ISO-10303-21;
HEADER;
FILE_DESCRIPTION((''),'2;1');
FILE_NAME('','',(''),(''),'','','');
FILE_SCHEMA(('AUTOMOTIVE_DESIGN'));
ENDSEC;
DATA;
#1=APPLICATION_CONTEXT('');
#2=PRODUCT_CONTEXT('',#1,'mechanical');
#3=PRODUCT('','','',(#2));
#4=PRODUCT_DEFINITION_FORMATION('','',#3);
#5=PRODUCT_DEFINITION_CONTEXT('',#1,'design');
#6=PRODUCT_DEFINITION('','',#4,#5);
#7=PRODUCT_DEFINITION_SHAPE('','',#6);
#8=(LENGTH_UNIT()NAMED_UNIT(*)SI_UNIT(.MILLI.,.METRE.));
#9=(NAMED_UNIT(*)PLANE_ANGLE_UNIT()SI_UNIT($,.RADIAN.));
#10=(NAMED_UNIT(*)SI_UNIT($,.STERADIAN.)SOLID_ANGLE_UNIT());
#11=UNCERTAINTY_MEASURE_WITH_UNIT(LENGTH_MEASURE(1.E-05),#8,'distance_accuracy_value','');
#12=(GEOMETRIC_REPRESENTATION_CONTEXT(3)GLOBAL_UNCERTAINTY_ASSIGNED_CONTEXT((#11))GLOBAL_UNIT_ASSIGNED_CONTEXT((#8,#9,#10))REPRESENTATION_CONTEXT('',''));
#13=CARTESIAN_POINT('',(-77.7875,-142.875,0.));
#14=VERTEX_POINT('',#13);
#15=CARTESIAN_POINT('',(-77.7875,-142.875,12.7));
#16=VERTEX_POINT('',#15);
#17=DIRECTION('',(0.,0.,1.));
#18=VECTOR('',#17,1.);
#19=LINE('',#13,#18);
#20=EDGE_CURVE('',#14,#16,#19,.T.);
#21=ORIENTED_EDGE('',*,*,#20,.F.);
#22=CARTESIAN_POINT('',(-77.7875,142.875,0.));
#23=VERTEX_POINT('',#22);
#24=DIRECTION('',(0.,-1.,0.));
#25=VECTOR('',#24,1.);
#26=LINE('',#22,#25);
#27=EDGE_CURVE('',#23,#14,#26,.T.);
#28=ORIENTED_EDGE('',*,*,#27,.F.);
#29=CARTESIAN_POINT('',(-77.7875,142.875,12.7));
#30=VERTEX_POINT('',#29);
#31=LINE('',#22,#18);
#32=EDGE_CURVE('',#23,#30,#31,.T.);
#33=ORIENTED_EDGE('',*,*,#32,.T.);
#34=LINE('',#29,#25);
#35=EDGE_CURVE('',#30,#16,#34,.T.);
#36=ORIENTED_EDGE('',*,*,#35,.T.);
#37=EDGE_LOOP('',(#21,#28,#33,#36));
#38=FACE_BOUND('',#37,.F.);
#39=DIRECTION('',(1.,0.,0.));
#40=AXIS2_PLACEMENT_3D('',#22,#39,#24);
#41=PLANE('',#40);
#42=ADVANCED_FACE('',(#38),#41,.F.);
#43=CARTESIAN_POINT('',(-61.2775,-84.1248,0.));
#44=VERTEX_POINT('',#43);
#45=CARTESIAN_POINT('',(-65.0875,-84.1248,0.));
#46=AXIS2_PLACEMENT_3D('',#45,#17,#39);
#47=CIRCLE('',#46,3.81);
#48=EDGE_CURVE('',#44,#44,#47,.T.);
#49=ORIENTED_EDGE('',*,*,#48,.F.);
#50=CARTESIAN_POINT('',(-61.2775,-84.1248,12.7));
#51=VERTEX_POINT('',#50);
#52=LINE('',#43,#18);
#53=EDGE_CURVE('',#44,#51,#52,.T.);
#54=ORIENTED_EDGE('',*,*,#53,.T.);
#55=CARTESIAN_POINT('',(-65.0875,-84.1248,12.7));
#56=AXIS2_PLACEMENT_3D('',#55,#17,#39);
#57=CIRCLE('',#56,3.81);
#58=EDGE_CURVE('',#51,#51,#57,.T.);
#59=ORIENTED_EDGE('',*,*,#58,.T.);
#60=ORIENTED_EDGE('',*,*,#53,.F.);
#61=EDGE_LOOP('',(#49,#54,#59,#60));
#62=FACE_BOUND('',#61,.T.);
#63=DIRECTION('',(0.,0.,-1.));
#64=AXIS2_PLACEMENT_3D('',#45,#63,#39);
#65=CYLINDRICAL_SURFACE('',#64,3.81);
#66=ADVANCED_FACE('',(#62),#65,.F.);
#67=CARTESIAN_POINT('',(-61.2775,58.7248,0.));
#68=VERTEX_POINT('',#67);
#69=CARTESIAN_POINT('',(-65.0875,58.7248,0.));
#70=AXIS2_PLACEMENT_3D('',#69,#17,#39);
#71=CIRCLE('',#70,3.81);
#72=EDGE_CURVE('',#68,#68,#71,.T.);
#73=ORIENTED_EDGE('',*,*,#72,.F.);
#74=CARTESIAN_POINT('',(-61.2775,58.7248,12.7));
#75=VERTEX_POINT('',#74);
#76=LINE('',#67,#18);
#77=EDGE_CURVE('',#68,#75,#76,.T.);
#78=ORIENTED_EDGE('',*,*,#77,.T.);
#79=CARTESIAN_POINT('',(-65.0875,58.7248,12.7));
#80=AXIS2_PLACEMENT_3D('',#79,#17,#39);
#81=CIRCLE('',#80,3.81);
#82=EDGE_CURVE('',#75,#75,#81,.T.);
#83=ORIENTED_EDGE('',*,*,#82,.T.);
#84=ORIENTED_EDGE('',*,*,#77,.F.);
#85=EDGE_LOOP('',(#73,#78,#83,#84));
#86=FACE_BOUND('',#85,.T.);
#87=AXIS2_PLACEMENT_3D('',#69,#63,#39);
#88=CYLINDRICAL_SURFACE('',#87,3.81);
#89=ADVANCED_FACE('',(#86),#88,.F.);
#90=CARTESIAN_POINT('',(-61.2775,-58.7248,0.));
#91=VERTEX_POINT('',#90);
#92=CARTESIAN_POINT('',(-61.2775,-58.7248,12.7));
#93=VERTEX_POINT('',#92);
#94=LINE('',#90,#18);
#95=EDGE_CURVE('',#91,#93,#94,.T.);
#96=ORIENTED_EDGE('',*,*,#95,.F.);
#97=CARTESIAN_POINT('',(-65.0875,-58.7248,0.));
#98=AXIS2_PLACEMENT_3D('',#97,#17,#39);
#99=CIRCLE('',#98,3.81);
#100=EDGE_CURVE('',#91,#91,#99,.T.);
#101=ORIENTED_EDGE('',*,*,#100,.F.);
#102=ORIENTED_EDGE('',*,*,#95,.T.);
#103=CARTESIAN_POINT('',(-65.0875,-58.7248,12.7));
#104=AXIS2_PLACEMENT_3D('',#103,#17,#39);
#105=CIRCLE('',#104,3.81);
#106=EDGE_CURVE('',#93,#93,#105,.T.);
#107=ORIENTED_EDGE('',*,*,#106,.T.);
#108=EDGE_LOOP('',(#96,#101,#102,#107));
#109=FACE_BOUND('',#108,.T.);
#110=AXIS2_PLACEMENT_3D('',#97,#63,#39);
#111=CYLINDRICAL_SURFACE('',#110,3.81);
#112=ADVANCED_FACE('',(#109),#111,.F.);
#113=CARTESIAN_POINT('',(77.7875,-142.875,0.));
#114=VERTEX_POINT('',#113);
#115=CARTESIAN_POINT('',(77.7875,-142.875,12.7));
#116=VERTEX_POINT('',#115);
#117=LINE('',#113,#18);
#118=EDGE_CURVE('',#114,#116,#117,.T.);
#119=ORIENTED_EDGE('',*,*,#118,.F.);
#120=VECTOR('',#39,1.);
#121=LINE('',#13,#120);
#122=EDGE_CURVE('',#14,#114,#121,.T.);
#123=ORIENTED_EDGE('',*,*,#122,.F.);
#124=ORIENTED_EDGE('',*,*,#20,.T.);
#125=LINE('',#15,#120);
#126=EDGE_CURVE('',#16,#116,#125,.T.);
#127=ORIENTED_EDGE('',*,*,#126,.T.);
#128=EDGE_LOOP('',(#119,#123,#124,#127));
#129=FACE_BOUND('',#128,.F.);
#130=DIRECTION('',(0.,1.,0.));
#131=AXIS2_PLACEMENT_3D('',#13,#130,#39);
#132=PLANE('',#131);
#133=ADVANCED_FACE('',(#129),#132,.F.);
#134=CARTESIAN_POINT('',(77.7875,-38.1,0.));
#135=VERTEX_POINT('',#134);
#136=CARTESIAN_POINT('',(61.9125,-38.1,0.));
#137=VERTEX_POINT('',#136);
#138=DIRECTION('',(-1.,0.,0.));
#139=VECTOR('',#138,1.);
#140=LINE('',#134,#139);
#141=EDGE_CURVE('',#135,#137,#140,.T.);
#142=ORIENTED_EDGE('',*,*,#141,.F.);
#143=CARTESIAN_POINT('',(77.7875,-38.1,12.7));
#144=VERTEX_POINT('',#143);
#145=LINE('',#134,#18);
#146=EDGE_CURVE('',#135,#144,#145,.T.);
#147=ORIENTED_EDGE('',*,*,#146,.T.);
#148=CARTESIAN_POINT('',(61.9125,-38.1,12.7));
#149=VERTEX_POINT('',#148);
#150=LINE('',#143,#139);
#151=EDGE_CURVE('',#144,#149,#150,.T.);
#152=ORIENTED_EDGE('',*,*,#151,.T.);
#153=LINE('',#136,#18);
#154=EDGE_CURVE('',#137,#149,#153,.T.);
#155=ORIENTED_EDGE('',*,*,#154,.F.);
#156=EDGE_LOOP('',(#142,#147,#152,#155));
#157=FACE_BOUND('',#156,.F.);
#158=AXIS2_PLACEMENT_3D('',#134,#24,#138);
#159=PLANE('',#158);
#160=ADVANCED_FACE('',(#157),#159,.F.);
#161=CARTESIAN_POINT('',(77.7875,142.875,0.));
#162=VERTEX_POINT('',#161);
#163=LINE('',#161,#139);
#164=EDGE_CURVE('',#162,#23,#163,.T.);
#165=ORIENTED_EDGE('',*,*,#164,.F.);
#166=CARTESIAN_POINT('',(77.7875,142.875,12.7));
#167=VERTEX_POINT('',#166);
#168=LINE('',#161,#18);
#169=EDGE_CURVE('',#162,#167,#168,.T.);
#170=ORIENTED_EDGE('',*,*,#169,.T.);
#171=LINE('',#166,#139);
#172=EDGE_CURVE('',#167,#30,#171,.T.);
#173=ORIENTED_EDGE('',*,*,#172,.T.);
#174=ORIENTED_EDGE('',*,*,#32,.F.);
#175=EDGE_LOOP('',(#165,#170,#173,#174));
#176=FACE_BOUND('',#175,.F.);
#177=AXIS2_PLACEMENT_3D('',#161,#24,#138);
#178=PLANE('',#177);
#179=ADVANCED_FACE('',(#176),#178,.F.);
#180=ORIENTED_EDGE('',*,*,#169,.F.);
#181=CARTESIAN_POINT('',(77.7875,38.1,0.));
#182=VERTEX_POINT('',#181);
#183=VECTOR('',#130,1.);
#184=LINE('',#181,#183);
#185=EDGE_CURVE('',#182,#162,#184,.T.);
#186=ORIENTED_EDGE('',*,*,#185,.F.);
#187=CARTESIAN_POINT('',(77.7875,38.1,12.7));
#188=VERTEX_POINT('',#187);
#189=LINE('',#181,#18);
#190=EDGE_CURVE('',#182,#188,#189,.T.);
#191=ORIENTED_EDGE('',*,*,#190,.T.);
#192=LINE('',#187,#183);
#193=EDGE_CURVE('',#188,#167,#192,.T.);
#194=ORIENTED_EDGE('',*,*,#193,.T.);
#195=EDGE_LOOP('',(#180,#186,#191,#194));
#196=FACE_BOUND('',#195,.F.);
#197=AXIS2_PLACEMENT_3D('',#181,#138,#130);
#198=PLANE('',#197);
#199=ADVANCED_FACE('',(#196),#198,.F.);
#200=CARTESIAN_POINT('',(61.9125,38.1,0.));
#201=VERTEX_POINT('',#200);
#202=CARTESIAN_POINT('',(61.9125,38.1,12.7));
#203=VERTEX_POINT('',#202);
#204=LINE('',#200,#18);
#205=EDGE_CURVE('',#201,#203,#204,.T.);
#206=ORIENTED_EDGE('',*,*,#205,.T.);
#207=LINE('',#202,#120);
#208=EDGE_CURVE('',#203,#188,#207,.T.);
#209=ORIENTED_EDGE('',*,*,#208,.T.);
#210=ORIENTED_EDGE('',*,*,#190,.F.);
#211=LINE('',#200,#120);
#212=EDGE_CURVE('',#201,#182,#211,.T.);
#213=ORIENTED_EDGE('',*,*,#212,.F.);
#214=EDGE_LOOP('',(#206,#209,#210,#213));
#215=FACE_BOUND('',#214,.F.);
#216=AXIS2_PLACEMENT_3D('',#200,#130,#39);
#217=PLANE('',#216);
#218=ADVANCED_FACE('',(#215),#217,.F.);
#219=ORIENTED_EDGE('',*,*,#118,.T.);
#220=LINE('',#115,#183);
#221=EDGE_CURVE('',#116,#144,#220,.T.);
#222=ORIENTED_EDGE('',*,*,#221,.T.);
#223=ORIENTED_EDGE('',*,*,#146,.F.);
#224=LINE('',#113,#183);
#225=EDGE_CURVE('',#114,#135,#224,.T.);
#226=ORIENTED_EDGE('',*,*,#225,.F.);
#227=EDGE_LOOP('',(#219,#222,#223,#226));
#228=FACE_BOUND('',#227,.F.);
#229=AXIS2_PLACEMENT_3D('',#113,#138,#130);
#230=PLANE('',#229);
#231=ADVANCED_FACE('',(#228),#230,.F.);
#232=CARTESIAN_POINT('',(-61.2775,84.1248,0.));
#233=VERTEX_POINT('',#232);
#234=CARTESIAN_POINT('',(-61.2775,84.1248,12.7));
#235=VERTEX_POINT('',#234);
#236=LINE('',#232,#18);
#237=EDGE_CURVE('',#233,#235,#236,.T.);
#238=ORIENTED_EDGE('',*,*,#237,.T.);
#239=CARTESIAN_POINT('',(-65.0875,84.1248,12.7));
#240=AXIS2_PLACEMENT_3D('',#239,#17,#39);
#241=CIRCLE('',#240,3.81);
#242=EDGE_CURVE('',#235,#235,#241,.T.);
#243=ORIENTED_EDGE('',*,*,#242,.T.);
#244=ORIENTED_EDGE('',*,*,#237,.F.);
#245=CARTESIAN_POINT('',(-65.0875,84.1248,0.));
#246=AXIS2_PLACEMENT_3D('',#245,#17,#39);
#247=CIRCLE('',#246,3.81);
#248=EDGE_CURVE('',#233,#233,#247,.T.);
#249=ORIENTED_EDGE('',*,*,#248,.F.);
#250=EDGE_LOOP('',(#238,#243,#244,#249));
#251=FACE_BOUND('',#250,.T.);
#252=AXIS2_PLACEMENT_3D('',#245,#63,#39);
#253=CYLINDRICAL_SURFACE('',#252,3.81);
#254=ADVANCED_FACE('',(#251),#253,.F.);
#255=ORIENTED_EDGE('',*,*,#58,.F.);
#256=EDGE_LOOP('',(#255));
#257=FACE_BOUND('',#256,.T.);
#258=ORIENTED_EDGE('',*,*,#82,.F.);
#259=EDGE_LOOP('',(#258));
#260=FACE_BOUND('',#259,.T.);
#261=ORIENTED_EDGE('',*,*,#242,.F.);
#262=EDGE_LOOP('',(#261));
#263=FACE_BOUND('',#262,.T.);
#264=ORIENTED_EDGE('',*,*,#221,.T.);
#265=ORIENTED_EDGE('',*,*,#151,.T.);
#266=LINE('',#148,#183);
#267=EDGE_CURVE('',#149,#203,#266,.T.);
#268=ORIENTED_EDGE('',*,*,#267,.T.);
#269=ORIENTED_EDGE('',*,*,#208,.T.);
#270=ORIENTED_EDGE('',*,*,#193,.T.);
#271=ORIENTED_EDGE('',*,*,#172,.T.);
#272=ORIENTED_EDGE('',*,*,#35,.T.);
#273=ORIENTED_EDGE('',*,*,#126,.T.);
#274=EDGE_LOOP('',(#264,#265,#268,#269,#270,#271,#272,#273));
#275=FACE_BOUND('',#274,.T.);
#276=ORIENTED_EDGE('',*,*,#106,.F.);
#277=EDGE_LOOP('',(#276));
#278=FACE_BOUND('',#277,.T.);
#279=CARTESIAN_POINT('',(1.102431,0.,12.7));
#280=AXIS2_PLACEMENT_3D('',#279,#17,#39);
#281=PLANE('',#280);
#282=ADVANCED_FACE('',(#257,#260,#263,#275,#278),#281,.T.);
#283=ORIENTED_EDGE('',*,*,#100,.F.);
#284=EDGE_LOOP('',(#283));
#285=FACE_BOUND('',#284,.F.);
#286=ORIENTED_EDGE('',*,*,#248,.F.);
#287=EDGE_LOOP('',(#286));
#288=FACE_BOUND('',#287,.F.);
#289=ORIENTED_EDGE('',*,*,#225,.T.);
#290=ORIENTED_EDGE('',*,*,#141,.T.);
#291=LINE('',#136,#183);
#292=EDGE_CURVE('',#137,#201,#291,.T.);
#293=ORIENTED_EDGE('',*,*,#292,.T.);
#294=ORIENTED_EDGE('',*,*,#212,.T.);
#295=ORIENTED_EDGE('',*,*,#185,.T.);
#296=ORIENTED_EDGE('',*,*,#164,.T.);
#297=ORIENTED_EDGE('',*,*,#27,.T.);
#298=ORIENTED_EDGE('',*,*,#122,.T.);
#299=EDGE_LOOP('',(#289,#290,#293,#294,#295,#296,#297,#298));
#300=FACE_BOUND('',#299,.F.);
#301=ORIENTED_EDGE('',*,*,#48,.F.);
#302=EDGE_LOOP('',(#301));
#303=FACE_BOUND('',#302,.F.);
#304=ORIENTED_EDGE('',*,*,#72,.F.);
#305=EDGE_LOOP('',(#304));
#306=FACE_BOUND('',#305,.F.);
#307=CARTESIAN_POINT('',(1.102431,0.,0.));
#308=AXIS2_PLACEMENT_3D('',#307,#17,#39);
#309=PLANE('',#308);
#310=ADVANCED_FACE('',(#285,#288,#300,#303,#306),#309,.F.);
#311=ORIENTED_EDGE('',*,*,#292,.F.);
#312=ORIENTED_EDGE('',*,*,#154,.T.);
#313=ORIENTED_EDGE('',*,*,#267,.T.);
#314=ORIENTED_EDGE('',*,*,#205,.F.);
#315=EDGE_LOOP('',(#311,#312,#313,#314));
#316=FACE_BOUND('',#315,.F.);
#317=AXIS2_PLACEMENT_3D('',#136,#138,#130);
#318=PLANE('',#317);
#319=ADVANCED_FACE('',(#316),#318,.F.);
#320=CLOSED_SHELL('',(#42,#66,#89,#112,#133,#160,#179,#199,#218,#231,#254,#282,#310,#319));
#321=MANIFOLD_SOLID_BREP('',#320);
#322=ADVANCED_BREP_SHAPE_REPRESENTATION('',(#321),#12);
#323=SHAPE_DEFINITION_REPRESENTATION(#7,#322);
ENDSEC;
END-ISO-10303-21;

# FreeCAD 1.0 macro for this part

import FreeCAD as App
import Part
import Sketcher
Q = App.Units.Quantity

doc = App.newDocument("Part")
body = doc.addObject("PartDesign::Body", "Body")

# Sketch on XY plane
sketch1 = body.newObject("Sketcher::SketchObject", "Sketch")
sketch1.AttachmentSupport = (doc.getObject("XY_Plane"), [""])
sketch1.MapMode = "FlatFace"
sketch1.addGeometry(Part.LineSegment(App.Vector(77.8, 38.1, 0), App.Vector(77.8, 142.9, 0)), False)
sketch1.addGeometry(Part.LineSegment(App.Vector(77.8, 142.9, 0), App.Vector(-77.8, 142.9, 0)), False)
sketch1.addGeometry(Part.LineSegment(App.Vector(-77.8, 142.9, 0), App.Vector(-77.8, -142.9, 0)), False)
sketch1.addGeometry(Part.LineSegment(App.Vector(-77.8, -142.9, 0), App.Vector(77.8, -142.9, 0)), False)
sketch1.addGeometry(Part.LineSegment(App.Vector(77.8, -142.9, 0), App.Vector(77.8, -38.1, 0)), False)
sketch1.addGeometry(Part.LineSegment(App.Vector(77.8, -38.1, 0), App.Vector(61.9, -38.1, 0)), False)
sketch1.addGeometry(Part.LineSegment(App.Vector(61.9, -38.1, 0), App.Vector(61.9, 38.1, 0)), False)
sketch1.addGeometry(Part.LineSegment(App.Vector(61.9, 38.1, 0), App.Vector(77.8, 38.1, 0)), False)
sketch1.addGeometry(Part.Circle(App.Vector(-65.1, -84.1, 0), App.Vector(0, 0, 1), 3.8), False)
sketch1.addGeometry(Part.Circle(App.Vector(-65.1, -58.7, 0), App.Vector(0, 0, 1), 3.8), False)
sketch1.addGeometry(Part.Circle(App.Vector(-65.1, 58.7, 0), App.Vector(0, 0, 1), 3.8), False)
sketch1.addGeometry(Part.Circle(App.Vector(-65.1, 84.1, 0), App.Vector(0, 0, 1), 3.8), False)
sketch1.addConstraint(Sketcher.Constraint("Coincident", 0, 2, 1, 1))
sketch1.addConstraint(Sketcher.Constraint("Coincident", 1, 2, 2, 1))
sketch1.addConstraint(Sketcher.Constraint("Coincident", 2, 2, 3, 1))
sketch1.addConstraint(Sketcher.Constraint("Coincident", 3, 2, 4, 1))
sketch1.addConstraint(Sketcher.Constraint("Coincident", 4, 2, 5, 1))
sketch1.addConstraint(Sketcher.Constraint("Coincident", 5, 2, 6, 1))
sketch1.addConstraint(Sketcher.Constraint("Coincident", 6, 2, 7, 1))
sketch1.addConstraint(Sketcher.Constraint("Coincident", 7, 2, 0, 1))
sketch1.addConstraint(Sketcher.Constraint("Vertical", 0))
sketch1.addConstraint(Sketcher.Constraint("Horizontal", 1))
sketch1.addConstraint(Sketcher.Constraint("Vertical", 2))
sketch1.addConstraint(Sketcher.Constraint("Horizontal", 3))
sketch1.addConstraint(Sketcher.Constraint("Vertical", 4))
sketch1.addConstraint(Sketcher.Constraint("Horizontal", 5))
sketch1.addConstraint(Sketcher.Constraint("Vertical", 6))
sketch1.addConstraint(Sketcher.Constraint("Horizontal", 7))
sketch1.addConstraint(Sketcher.Constraint("Equal", 8, 9))
sketch1.addConstraint(Sketcher.Constraint("Equal", 9, 10))
sketch1.addConstraint(Sketcher.Constraint("Equal", 10, 11))
sketch1.addConstraint(Sketcher.Constraint("Symmetric", 0, 2, 2, 2, -1, 1))
sketch1.addConstraint(Sketcher.Constraint("Symmetric", 9, 3, 10, 3, -1))
sketch1.addConstraint(Sketcher.Constraint("Symmetric", 8, 3, 11, 3, -1))
sketch1.addConstraint(Sketcher.Constraint("Symmetric", 4, 2, 7, 2, -1))
sketch1.addConstraint(Sketcher.Constraint("Vertical", 8, 3, 9, 3))
sketch1.addConstraint(Sketcher.Constraint("Diameter", 8, Q("0.3 in")))
sketch1.addConstraint(Sketcher.Constraint("DistanceY", 6, 1, 6, 2, Q("3 in")))
sketch1.addConstraint(Sketcher.Constraint("DistanceY", 8, 3, 9, 3, Q("1 in")))
sketch1.addConstraint(Sketcher.Constraint("DistanceX", 9, 3, 5, 2, Q("5 in")))
sketch1.addConstraint(Sketcher.Constraint("DistanceY", 2, 2, 2, 1, Q("11.25 in")))
sketch1.addConstraint(Sketcher.Constraint("DistanceX", 1, 2, 11, 3, Q("0.5 in")))
sketch1.addConstraint(Sketcher.Constraint("DistanceX", 1, 2, 1, 1, Q("6.125 in")))
sketch1.addConstraint(Sketcher.Constraint("DistanceY", 8, 3, -1, 1, Q("3.312 in")))
pad1 = body.newObject("PartDesign::Pad", "Pad")
pad1.Profile = sketch1
pad1.Length = Q("0.5 in")

doc.recompute()
